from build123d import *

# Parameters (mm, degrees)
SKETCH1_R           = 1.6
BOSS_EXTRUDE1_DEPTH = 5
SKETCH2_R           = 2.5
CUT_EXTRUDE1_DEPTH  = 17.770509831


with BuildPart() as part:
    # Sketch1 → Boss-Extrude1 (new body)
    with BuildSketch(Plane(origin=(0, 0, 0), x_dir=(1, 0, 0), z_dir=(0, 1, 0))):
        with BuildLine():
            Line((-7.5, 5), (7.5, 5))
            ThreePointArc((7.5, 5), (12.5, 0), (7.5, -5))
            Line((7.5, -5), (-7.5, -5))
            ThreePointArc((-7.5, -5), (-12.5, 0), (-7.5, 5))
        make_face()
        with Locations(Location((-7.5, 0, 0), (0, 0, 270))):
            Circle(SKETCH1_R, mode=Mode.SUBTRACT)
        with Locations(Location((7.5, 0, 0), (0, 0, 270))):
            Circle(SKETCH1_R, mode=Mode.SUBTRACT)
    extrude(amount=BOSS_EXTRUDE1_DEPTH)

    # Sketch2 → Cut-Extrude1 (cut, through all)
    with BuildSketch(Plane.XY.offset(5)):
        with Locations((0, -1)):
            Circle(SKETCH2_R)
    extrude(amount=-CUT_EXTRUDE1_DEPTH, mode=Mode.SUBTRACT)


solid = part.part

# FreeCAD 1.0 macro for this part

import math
import FreeCAD as App
import Part
import Sketcher

V = App.Vector

doc = App.newDocument("Part")
body = doc.addObject("PartDesign::Body", "Body")

# Sketch on XZ plane
sketch1 = body.newObject("Sketcher::SketchObject", "Sketch")
sketch1.AttachmentSupport = (doc.getObject("XZ_Plane"), [""])
sketch1.MapMode = "FlatFace"
sketch1.addGeometry([
    Part.LineSegment(V(7.5, -5, 0), V(-7.5, -5, 0)),  # 0
    Part.ArcOfCircle(Part.Circle(V(-7.5, 0, 0), V(0, 0, 1), 5), math.radians(90), math.radians(270)),  # 1
    Part.LineSegment(V(-7.5, 5, 0), V(7.5, 5, 0)),  # 2
    Part.ArcOfCircle(Part.Circle(V(7.5, 0, 0), V(0, 0, 1), 5), math.radians(-90), math.radians(90)),  # 3
    Part.Circle(V(7.5, 0, 0), V(0, 0, 1), 1.6),  # 4
    Part.Circle(V(-7.5, 0, 0), V(0, 0, 1), 1.6),  # 5
], False)
sketch1.addConstraint([
    Sketcher.Constraint("Tangent", 0, 2, 1, 2),
    Sketcher.Constraint("Tangent", 1, 1, 2, 1),
    Sketcher.Constraint("Tangent", 2, 2, 3, 2),
    Sketcher.Constraint("Tangent", 3, 1, 0, 1),
    Sketcher.Constraint("Horizontal", 0),
    Sketcher.Constraint("Horizontal", 2),
    Sketcher.Constraint("Coincident", 4, 3, 3, 3),
    Sketcher.Constraint("Coincident", 5, 3, 1, 3),
    Sketcher.Constraint("Equal", 4, 5),
    Sketcher.Constraint("Symmetric", 1, 3, 3, 3, -1, 1),
    Sketcher.Constraint("Radius", 1, 5.0),
    Sketcher.Constraint("Diameter", 4, 3.2),
    Sketcher.Constraint("DistanceX", 0, 2, 0, 1, 15.0),
])
pad1 = body.newObject("PartDesign::Pad", "Pad")
pad1.Profile = sketch1
pad1.Length = 5
pad1.Reversed = True

# Sketch on XY plane
sketch2 = body.newObject("Sketcher::SketchObject", "Sketch001")
sketch2.AttachmentSupport = (doc.getObject("XY_Plane"), [""])
sketch2.MapMode = "FlatFace"
sketch2.AttachmentOffset = App.Placement(V(0, 0, 5), App.Rotation())
sketch2.addGeometry(Part.Circle(V(0, -1, 0), V(0, 0, 1), 2.5), False)
sketch2.addConstraint([
    Sketcher.Constraint("PointOnObject", 0, 3, -2),
    Sketcher.Constraint("Diameter", 0, 5.0),
    Sketcher.Constraint("DistanceY", 0, 3, -1, 1, 1.0),
])
pocket1 = body.newObject("PartDesign::Pocket", "Pocket")
pocket1.Profile = sketch2
pocket1.Type = "ThroughAll"

doc.recompute()
